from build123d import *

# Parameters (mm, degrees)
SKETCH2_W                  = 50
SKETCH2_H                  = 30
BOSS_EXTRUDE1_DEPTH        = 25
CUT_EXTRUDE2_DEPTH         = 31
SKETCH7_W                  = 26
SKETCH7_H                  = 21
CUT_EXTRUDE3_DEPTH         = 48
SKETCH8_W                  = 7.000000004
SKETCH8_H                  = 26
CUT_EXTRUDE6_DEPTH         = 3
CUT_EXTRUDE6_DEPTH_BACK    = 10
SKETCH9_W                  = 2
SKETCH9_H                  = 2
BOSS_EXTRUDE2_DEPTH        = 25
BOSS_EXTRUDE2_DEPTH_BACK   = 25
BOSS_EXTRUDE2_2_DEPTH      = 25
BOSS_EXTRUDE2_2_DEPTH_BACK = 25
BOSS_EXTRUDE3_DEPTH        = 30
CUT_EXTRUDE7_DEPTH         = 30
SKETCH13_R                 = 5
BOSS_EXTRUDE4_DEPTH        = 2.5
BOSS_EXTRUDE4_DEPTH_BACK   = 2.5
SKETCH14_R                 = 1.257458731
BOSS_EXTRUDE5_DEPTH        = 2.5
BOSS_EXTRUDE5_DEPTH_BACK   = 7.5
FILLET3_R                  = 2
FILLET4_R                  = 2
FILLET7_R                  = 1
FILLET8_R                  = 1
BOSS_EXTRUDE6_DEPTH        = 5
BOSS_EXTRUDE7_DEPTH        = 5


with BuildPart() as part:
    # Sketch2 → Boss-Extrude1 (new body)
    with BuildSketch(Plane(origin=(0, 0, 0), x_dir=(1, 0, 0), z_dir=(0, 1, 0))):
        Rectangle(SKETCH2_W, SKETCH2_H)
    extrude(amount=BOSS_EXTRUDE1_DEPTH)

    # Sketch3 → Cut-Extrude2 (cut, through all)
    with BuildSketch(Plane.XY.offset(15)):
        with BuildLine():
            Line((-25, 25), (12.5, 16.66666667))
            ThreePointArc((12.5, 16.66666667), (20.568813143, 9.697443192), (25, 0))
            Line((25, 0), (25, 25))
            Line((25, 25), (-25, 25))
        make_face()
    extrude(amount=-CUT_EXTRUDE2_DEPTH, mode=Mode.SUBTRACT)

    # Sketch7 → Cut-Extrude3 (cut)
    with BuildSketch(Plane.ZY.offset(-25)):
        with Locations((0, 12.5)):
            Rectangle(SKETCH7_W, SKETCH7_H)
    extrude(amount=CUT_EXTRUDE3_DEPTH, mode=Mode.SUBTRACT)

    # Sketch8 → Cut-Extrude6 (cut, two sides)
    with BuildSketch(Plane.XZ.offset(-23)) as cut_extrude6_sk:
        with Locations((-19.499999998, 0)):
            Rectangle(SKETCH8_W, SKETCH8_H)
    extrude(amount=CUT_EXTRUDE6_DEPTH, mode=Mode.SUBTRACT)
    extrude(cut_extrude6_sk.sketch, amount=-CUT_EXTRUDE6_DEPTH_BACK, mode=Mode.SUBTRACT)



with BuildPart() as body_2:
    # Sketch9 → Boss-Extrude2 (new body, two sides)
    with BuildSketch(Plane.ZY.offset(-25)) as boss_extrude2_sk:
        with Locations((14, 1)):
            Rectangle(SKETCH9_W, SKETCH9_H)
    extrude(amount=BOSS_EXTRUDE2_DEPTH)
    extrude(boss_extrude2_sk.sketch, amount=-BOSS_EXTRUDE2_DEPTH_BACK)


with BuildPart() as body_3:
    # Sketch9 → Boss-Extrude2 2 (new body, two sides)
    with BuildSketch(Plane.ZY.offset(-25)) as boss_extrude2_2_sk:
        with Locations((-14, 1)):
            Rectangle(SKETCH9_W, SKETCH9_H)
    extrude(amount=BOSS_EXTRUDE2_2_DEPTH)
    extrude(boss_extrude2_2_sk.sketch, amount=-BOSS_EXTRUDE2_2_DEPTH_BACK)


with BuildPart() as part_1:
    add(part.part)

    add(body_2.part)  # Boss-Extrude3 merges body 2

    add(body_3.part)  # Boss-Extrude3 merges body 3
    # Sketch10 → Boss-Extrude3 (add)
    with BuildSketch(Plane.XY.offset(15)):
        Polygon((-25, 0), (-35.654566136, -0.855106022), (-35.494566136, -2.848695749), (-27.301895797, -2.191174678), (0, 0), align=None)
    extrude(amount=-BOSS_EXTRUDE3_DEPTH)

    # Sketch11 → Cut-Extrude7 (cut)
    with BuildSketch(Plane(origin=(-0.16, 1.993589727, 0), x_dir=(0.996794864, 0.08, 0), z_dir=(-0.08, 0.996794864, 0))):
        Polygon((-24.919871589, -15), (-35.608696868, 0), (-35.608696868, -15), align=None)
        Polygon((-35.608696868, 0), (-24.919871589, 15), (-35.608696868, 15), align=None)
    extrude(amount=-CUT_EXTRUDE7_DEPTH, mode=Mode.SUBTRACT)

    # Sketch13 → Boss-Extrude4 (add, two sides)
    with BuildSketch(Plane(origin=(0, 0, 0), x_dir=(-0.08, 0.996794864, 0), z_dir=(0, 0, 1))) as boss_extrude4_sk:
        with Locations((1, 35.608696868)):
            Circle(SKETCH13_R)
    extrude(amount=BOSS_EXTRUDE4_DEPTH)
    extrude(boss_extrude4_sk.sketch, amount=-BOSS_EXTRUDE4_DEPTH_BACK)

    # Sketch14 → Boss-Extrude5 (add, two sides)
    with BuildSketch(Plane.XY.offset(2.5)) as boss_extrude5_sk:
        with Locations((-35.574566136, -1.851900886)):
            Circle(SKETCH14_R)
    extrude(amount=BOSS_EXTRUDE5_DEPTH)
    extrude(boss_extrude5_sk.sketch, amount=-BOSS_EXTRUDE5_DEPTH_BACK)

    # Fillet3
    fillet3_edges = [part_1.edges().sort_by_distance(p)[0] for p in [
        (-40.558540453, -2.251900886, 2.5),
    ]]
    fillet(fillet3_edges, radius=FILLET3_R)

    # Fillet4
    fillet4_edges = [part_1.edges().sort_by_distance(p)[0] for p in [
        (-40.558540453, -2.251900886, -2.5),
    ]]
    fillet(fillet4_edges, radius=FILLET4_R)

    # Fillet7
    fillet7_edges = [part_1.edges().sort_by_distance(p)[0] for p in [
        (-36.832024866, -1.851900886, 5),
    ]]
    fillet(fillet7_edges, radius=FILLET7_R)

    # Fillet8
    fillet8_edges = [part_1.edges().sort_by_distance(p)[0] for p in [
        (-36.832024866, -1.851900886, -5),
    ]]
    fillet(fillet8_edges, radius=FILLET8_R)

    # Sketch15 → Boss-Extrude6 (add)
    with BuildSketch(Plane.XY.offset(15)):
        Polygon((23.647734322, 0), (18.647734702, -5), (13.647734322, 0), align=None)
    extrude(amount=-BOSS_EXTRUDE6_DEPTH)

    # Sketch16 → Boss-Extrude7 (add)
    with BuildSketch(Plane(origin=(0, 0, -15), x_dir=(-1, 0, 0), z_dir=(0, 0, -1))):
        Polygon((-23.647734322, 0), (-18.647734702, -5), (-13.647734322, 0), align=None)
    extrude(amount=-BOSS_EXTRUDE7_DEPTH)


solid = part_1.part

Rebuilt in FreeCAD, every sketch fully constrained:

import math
import FreeCAD as App
import Part
import Sketcher


def edges_at(feature, points):
    """Names of the edges that pass closest to the given points."""
    edges = feature.Shape.Edges
    near = lambda p: min(range(len(edges)), key=lambda i: edges[i].distToShape(Part.Vertex(*p))[0])
    return sorted({f"Edge{near(p) + 1}" for p in points})


def add_polygon(sketch, points):
    """Adds a closed chain of lines whose ends are joined by coincident constraints."""
    first, n = sketch.GeometryCount, len(points)
    for a, b in zip(points, points[1:] + points[:1]):
        sketch.addGeometry(Part.LineSegment(App.Vector(*a, 0), App.Vector(*b, 0)), False)
    for i in range(n):
        sketch.addConstraint(Sketcher.Constraint("Coincident", first + i, 2, first + (i + 1) % n, 1))

doc = App.newDocument("Part")
params = doc.addObject("Spreadsheet::Sheet", "Params")
for row, (alias, value) in enumerate([
    ("sketch1_width", "50 mm"),
    ("sketch1_height", "30 mm"),
    ("pad1_length", "25 mm"),
    ("sketch2_radius", "25 mm"),
    ("sketch2_width", "50 mm"),
    ("sketch2_height", "25 mm"),
    ("sketch3_width", "21 mm"),
    ("sketch3_height", "26 mm"),
    ("pocket2_length", "48 mm"),
    ("sketch4_width", "7 mm"),
    ("sketch4_height", "26 mm"),
    ("pocket3_length", "3 mm"),
    ("pocket3_length2", "10 mm"),
    ("sketch5_width", "2 mm"),
    ("pad2_length", "25 mm"),
    ("pad2_length2", "25 mm"),
    ("sketch6_width", "2 mm"),
    ("pad3_length", "25 mm"),
    ("pad3_length2", "25 mm"),
    ("sketch7_width", "25 mm"),
    ("sketch7_length", "2 mm"),
    ("pad4_length", "30 mm"),
    ("sketch8_height", "15 mm"),
    ("pocket4_length", "30 mm"),
    ("sketch9_diameter", "10 mm"),
    ("pad5_length", "2.5 mm"),
    ("pad5_length2", "2.5 mm"),
    ("pad6_length", "2.5 mm"),
    ("pad6_length2", "7.5 mm"),
    ("fillet_radius", "2 mm"),
    ("fillet2_radius", "2 mm"),
    ("fillet3_radius", "1 mm"),
    ("fillet4_radius", "1 mm"),
    ("sketch11_width", "10 mm"),
    ("pad7_length", "5 mm"),
    ("sketch12_width", "10 mm"),
    ("pad8_length", "5 mm"),
], start=1):
    params.set(f"A{row}", alias)
    params.set(f"B{row}", "=" + value)
    params.setAlias(f"B{row}", alias)

body = doc.addObject("PartDesign::Body", "Body")

# Sketch on XZ plane
sketch1 = body.newObject("Sketcher::SketchObject", "Sketch")
sketch1.AttachmentSupport = (doc.getObject("XZ_Plane"), [""])
sketch1.MapMode = "FlatFace"
add_polygon(sketch1, [(-25, -15), (-25, 15), (25, 15), (25, -15)])  # lines 0-3
sketch1.addConstraint(Sketcher.Constraint("Vertical", 0))
sketch1.addConstraint(Sketcher.Constraint("Horizontal", 1))
sketch1.addConstraint(Sketcher.Constraint("Vertical", 2))
sketch1.addConstraint(Sketcher.Constraint("Horizontal", 3))
sketch1.addConstraint(Sketcher.Constraint("Symmetric", 0, 2, 2, 2, -1, 1))
sketch1.addConstraint(Sketcher.Constraint("DistanceX", 1, 1, 1, 2, 50.0))
sketch1.addConstraint(Sketcher.Constraint("DistanceY", 0, 1, 0, 2, 30.0))
sketch1.setExpression("Constraints[9]", "Params.sketch1_width")
sketch1.setExpression("Constraints[10]", "Params.sketch1_height")
pad1 = body.newObject("PartDesign::Pad", "Pad")
pad1.Profile = sketch1
pad1.setExpression("Length", "Params.pad1_length")
pad1.Reversed = True

# Sketch on XY plane
sketch2 = body.newObject("Sketcher::SketchObject", "Sketch001")
sketch2.AttachmentSupport = (doc.getObject("XY_Plane"), [""])
sketch2.MapMode = "FlatFace"
sketch2.AttachmentOffset = App.Placement(App.Vector(0, 0, 15), App.Rotation())
sketch2.addGeometry(Part.LineSegment(App.Vector(-25, 25, 0), App.Vector(12.5, 16.666667, 0)), False)
sketch2.addGeometry(Part.ArcOfCircle(Part.Circle(App.Vector(0.568813, -5.302557, 0), App.Vector(0, 0, 1), 25), math.radians(12.245579), math.radians(61.494216)), False)
sketch2.addGeometry(Part.LineSegment(App.Vector(25, 0, 0), App.Vector(25, 25, 0)), False)
sketch2.addGeometry(Part.LineSegment(App.Vector(25, 25, 0), App.Vector(-25, 25, 0)), False)
sketch2.addConstraint(Sketcher.Constraint("Coincident", 0, 2, 1, 2))
sketch2.addConstraint(Sketcher.Constraint("Coincident", 1, 1, 2, 1))
sketch2.addConstraint(Sketcher.Constraint("Coincident", 2, 2, 3, 1))
sketch2.addConstraint(Sketcher.Constraint("Coincident", 3, 2, 0, 1))
sketch2.addConstraint(Sketcher.Constraint("Vertical", 2))
sketch2.addConstraint(Sketcher.Constraint("Horizontal", 3))
sketch2.addConstraint(Sketcher.Constraint("PointOnObject", 1, 1, -1))
sketch2.addConstraint(Sketcher.Constraint("Radius", 1, 25.0))
sketch2.addConstraint(Sketcher.Constraint("DistanceX", 3, 2, 3, 1, 50.0))
sketch2.addConstraint(Sketcher.Constraint("DistanceY", 2, 1, 2, 2, 25.0))
sketch2.addConstraint(Sketcher.Constraint("DistanceX", -1, 1, 1, 1, 25.0))
sketch2.addConstraint(Sketcher.Constraint("DistanceX", -1, 1, 0, 2, 12.5))
sketch2.addConstraint(Sketcher.Constraint("Distance", 0, 38.414769))
sketch2.setExpression("Constraints[7]", "Params.sketch2_radius")
sketch2.setExpression("Constraints[8]", "Params.sketch2_width")
sketch2.setExpression("Constraints[9]", "Params.sketch2_height")
pocket1 = body.newObject("PartDesign::Pocket", "Pocket")
pocket1.Profile = sketch2
pocket1.Type = "ThroughAll"

# Sketch on YZ plane
sketch3 = body.newObject("Sketcher::SketchObject", "Sketch002")
sketch3.AttachmentSupport = (doc.getObject("YZ_Plane"), [""])
sketch3.MapMode = "FlatFace"
sketch3.AttachmentOffset = App.Placement(App.Vector(0, 0, 25), App.Rotation())
add_polygon(sketch3, [(23, -13), (2, -13), (2, 13), (23, 13)])  # lines 0-3
sketch3.addConstraint(Sketcher.Constraint("Horizontal", 0))
sketch3.addConstraint(Sketcher.Constraint("Vertical", 1))
sketch3.addConstraint(Sketcher.Constraint("Horizontal", 2))
sketch3.addConstraint(Sketcher.Constraint("Vertical", 3))
sketch3.addConstraint(Sketcher.Constraint("DistanceX", 0, 2, 0, 1, 21.0))
sketch3.addConstraint(Sketcher.Constraint("DistanceY", 1, 1, 1, 2, 26.0))
sketch3.addConstraint(Sketcher.Constraint("DistanceX", -1, 1, 0, 2, 2.0))
sketch3.addConstraint(Sketcher.Constraint("DistanceY", 0, 2, -1, 1, 13.0))
sketch3.setExpression("Constraints[8]", "Params.sketch3_width")
sketch3.setExpression("Constraints[9]", "Params.sketch3_height")
pocket2 = body.newObject("PartDesign::Pocket", "Pocket001")
pocket2.Profile = sketch3
pocket2.setExpression("Length", "Params.pocket2_length")

# Sketch on XZ plane
sketch4 = body.newObject("Sketcher::SketchObject", "Sketch003")
sketch4.AttachmentSupport = (doc.getObject("XZ_Plane"), [""])
sketch4.MapMode = "FlatFace"
sketch4.AttachmentOffset = App.Placement(App.Vector(0, 0, -23), App.Rotation())
add_polygon(sketch4, [(-23, 13), (-23, -13), (-16, -13), (-16, 13)])  # lines 0-3
sketch4.addConstraint(Sketcher.Constraint("Vertical", 0))
sketch4.addConstraint(Sketcher.Constraint("Horizontal", 1))
sketch4.addConstraint(Sketcher.Constraint("Vertical", 2))
sketch4.addConstraint(Sketcher.Constraint("Horizontal", 3))
sketch4.addConstraint(Sketcher.Constraint("DistanceX", 1, 1, 1, 2, 7.0))
sketch4.addConstraint(Sketcher.Constraint("DistanceY", 0, 2, 0, 1, 26.0))
sketch4.addConstraint(Sketcher.Constraint("DistanceX", 0, 2, -1, 1, 23.0))
sketch4.addConstraint(Sketcher.Constraint("DistanceY", 0, 2, -1, 1, 13.0))
sketch4.setExpression("Constraints[8]", "Params.sketch4_width")
sketch4.setExpression("Constraints[9]", "Params.sketch4_height")
pocket3 = body.newObject("PartDesign::Pocket", "Pocket002")
pocket3.Profile = sketch4
pocket3.Type = "TwoLengths"
pocket3.setExpression("Length", "Params.pocket3_length")
pocket3.setExpression("Length2", "Params.pocket3_length2")
pocket3.Reversed = True
body2 = doc.addObject("PartDesign::Body", "Body001")

# Sketch on YZ plane
sketch5 = body2.newObject("Sketcher::SketchObject", "Sketch004")
sketch5.AttachmentSupport = (doc.getObject("YZ_Plane001"), [""])
sketch5.MapMode = "FlatFace"
sketch5.AttachmentOffset = App.Placement(App.Vector(0, 0, 25), App.Rotation())
add_polygon(sketch5, [(2, 13), (0, 13), (0, 15), (2, 15)])  # lines 0-3
sketch5.addConstraint(Sketcher.Constraint("Horizontal", 0))
sketch5.addConstraint(Sketcher.Constraint("Vertical", 1))
sketch5.addConstraint(Sketcher.Constraint("Horizontal", 2))
sketch5.addConstraint(Sketcher.Constraint("Vertical", 3))
sketch5.addConstraint(Sketcher.Constraint("PointOnObject", 0, 2, -2))
sketch5.addConstraint(Sketcher.Constraint("Equal", 2, 1))
sketch5.addConstraint(Sketcher.Constraint("DistanceX", 0, 2, 0, 1, 2.0))
sketch5.addConstraint(Sketcher.Constraint("DistanceY", -1, 1, 0, 2, 13.0))
sketch5.setExpression("Constraints[10]", "Params.sketch5_width")
pad2 = body2.newObject("PartDesign::Pad", "Pad001")
pad2.Profile = sketch5
pad2.Type = "TwoLengths"
pad2.setExpression("Length", "Params.pad2_length")
pad2.setExpression("Length2", "Params.pad2_length2")
pad2.Reversed = True
body3 = doc.addObject("PartDesign::Body", "Body002")

# Sketch on YZ plane
sketch6 = body3.newObject("Sketcher::SketchObject", "Sketch005")
sketch6.AttachmentSupport = (doc.getObject("YZ_Plane002"), [""])
sketch6.MapMode = "FlatFace"
sketch6.AttachmentOffset = App.Placement(App.Vector(0, 0, 25), App.Rotation())
add_polygon(sketch6, [(2, -15), (0, -15), (0, -13), (2, -13)])  # lines 0-3
sketch6.addConstraint(Sketcher.Constraint("Horizontal", 0))
sketch6.addConstraint(Sketcher.Constraint("Vertical", 1))
sketch6.addConstraint(Sketcher.Constraint("Horizontal", 2))
sketch6.addConstraint(Sketcher.Constraint("Vertical", 3))
sketch6.addConstraint(Sketcher.Constraint("PointOnObject", 0, 2, -2))
sketch6.addConstraint(Sketcher.Constraint("Equal", 2, 1))
sketch6.addConstraint(Sketcher.Constraint("DistanceX", 0, 2, 0, 1, 2.0))
sketch6.addConstraint(Sketcher.Constraint("DistanceY", 0, 2, -1, 1, 15.0))
sketch6.setExpression("Constraints[10]", "Params.sketch6_width")
pad3 = body3.newObject("PartDesign::Pad", "Pad002")
pad3.Profile = sketch6
pad3.Type = "TwoLengths"
pad3.setExpression("Length", "Params.pad3_length")
pad3.setExpression("Length2", "Params.pad3_length2")
pad3.Reversed = True
doc.recompute()

boolean = body.newObject("PartDesign::Boolean", "Boolean")
boolean.Type = "Fuse"
boolean.addObjects([body2])
doc.recompute()

boolean2 = body.newObject("PartDesign::Boolean", "Boolean001")
boolean2.Type = "Fuse"
boolean2.addObjects([body3])

# Sketch on XY plane
sketch7 = body.newObject("Sketcher::SketchObject", "Sketch006")
sketch7.AttachmentSupport = (doc.getObject("XY_Plane"), [""])
sketch7.MapMode = "FlatFace"
sketch7.AttachmentOffset = App.Placement(App.Vector(0, 0, 15), App.Rotation())
add_polygon(sketch7, [(-25, 0), (-35.654566, -0.855106), (-35.494566, -2.848696), (-27.301896, -2.191175), (0, 0)])  # lines 0-4
sketch7.addConstraint(Sketcher.Constraint("Horizontal", 4))
sketch7.addConstraint(Sketcher.Constraint("Coincident", 3, 2, -1, 1))
sketch7.addConstraint(Sketcher.Constraint("Perpendicular", 0, 1))
sketch7.addConstraint(Sketcher.Constraint("Perpendicular", 1, 2))
sketch7.addConstraint(Sketcher.Constraint("Parallel", 2, 3))
sketch7.addConstraint(Sketcher.Constraint("DistanceX", 4, 2, 4, 1, 25.0))
sketch7.addConstraint(Sketcher.Constraint("Distance", 1, 2.0))
sketch7.addConstraint(Sketcher.Constraint("DistanceX", 1, 2, 2, 2, 8.19267))
sketch7.addConstraint(Sketcher.Constraint("Distance", 0, 10.688825))
sketch7.setExpression("Constraints[10]", "Params.sketch7_width")
sketch7.setExpression("Constraints[11]", "Params.sketch7_length")
pad4 = body.newObject("PartDesign::Pad", "Pad003")
pad4.Profile = sketch7
pad4.setExpression("Length", "Params.pad4_length")
pad4.Reversed = True

# Sketch on an angled plane
sketch8 = body.newObject("Sketcher::SketchObject", "Sketch007")
sketch8.Placement = App.Placement(App.Vector(-0.16, 1.99359, 0), App.Rotation(App.Vector(0.996794864, 0.08, 0), App.Vector(0, 0, -1.000000001), App.Vector(-0.08, 0.996794864, 0), "ZXY"))
add_polygon(sketch8, [(-24.919872, -15), (-35.608697, 0), (-35.608697, -15)])  # lines 0-2
add_polygon(sketch8, [(-35.608697, 0), (-24.919872, 15), (-35.608697, 15)])  # lines 3-5
sketch8.addConstraint(Sketcher.Constraint("Vertical", 1))
sketch8.addConstraint(Sketcher.Constraint("Horizontal", 2))
sketch8.addConstraint(Sketcher.Constraint("Horizontal", 4))
sketch8.addConstraint(Sketcher.Constraint("Vertical", 5))
sketch8.addConstraint(Sketcher.Constraint("Coincident", 5, 2, 0, 2))
sketch8.addConstraint(Sketcher.Constraint("Symmetric", 2, 2, 3, 2, -1))
sketch8.addConstraint(Sketcher.Constraint("PointOnObject", 0, 2, -1))
sketch8.addConstraint(Sketcher.Constraint("DistanceY", 1, 2, 1, 1, 15.0))
sketch8.addConstraint(Sketcher.Constraint("DistanceX", 2, 1, 2, 2, 10.688825))
sketch8.addConstraint(Sketcher.Constraint("DistanceX", 2, 2, -1, 1, 24.919872))
sketch8.setExpression("Constraints[13]", "Params.sketch8_height")
pocket4 = body.newObject("PartDesign::Pocket", "Pocket003")
pocket4.Profile = sketch8
pocket4.setExpression("Length", "Params.pocket4_length")

# Sketch on XY plane
sketch9 = body.newObject("Sketcher::SketchObject", "Sketch008")
sketch9.AttachmentSupport = (doc.getObject("XY_Plane"), [""])
sketch9.MapMode = "FlatFace"
sketch9.addGeometry(Part.Circle(App.Vector(-35.574566, -1.851901, 0), App.Vector(0, 0, 1), 5), False)
sketch9.addConstraint(Sketcher.Constraint("Diameter", 0, 10.0))
sketch9.addConstraint(Sketcher.Constraint("DistanceY", 0, 3, -1, 1, 1.851901))
sketch9.addConstraint(Sketcher.Constraint("DistanceX", 0, 3, -1, 1, 35.574566))
sketch9.setExpression("Constraints[0]", "Params.sketch9_diameter")
pad5 = body.newObject("PartDesign::Pad", "Pad004")
pad5.Profile = sketch9
pad5.Type = "TwoLengths"
pad5.setExpression("Length", "Params.pad5_length")
pad5.setExpression("Length2", "Params.pad5_length2")

# Sketch on XY plane
sketch10 = body.newObject("Sketcher::SketchObject", "Sketch009")
sketch10.AttachmentSupport = (doc.getObject("XY_Plane"), [""])
sketch10.MapMode = "FlatFace"
sketch10.AttachmentOffset = App.Placement(App.Vector(0, 0, 2.5), App.Rotation())
sketch10.addGeometry(Part.Circle(App.Vector(-35.574566, -1.851901, 0), App.Vector(0, 0, 1), 1.257459), False)
sketch10.addConstraint(Sketcher.Constraint("Diameter", 0, 2.514917))
sketch10.addConstraint(Sketcher.Constraint("DistanceY", 0, 3, -1, 1, 1.851901))
sketch10.addConstraint(Sketcher.Constraint("DistanceX", 0, 3, -1, 1, 35.574566))
pad6 = body.newObject("PartDesign::Pad", "Pad005")
pad6.Profile = sketch10
pad6.Type = "TwoLengths"
pad6.setExpression("Length", "Params.pad6_length")
pad6.setExpression("Length2", "Params.pad6_length2")
doc.recompute()

fillet = body.newObject("PartDesign::Fillet", "Fillet")
fillet.Base = (pad6, edges_at(pad6, [(-40.559, -2.252, 2.5)]))
fillet.setExpression("Radius", "Params.fillet_radius")
doc.recompute()

fillet2 = body.newObject("PartDesign::Fillet", "Fillet001")
fillet2.Base = (fillet, edges_at(fillet, [(-40.559, -2.252, -2.5)]))
fillet2.setExpression("Radius", "Params.fillet2_radius")
doc.recompute()

fillet3 = body.newObject("PartDesign::Fillet", "Fillet002")
fillet3.Base = (fillet2, edges_at(fillet2, [(-36.832, -1.852, 5)]))
fillet3.setExpression("Radius", "Params.fillet3_radius")
doc.recompute()

fillet4 = body.newObject("PartDesign::Fillet", "Fillet003")
fillet4.Base = (fillet3, edges_at(fillet3, [(-36.832, -1.852, -5)]))
fillet4.setExpression("Radius", "Params.fillet4_radius")

# Sketch on XY plane
sketch11 = body.newObject("Sketcher::SketchObject", "Sketch010")
sketch11.AttachmentSupport = (doc.getObject("XY_Plane"), [""])
sketch11.MapMode = "FlatFace"
sketch11.AttachmentOffset = App.Placement(App.Vector(0, 0, 15), App.Rotation())
add_polygon(sketch11, [(18.647735, -5), (23.647734, 0), (13.647734, 0)])  # lines 0-2
sketch11.addConstraint(Sketcher.Constraint("Horizontal", 1))
sketch11.addConstraint(Sketcher.Constraint("PointOnObject", 0, 2, -1))
sketch11.addConstraint(Sketcher.Constraint("Perpendicular", 0, 2))
sketch11.addConstraint(Sketcher.Constraint("Equal", 0, 2))
sketch11.addConstraint(Sketcher.Constraint("DistanceX", 1, 2, 1, 1, 10.0))
sketch11.addConstraint(Sketcher.Constraint("DistanceX", -1, 1, 0, 2, 23.647734))
sketch11.setExpression("Constraints[7]", "Params.sketch11_width")
pad7 = body.newObject("PartDesign::Pad", "Pad006")
pad7.Profile = sketch11
pad7.setExpression("Length", "Params.pad7_length")
pad7.Reversed = True

# Sketch on XY plane
sketch12 = body.newObject("Sketcher::SketchObject", "Sketch011")
sketch12.AttachmentSupport = (doc.getObject("XY_Plane"), [""])
sketch12.MapMode = "FlatFace"
sketch12.AttachmentOffset = App.Placement(App.Vector(0, 0, -15), App.Rotation())
add_polygon(sketch12, [(23.647734, 0), (18.647735, -5), (13.647734, 0)])  # lines 0-2
sketch12.addConstraint(Sketcher.Constraint("Horizontal", 2))
sketch12.addConstraint(Sketcher.Constraint("PointOnObject", 1, 2, -1))
sketch12.addConstraint(Sketcher.Constraint("Perpendicular", 0, 1))
sketch12.addConstraint(Sketcher.Constraint("Equal", 0, 1))
sketch12.addConstraint(Sketcher.Constraint("DistanceX", 2, 1, 2, 2, 10.0))
sketch12.addConstraint(Sketcher.Constraint("DistanceX", -1, 1, 0, 2, 18.647735))
sketch12.setExpression("Constraints[7]", "Params.sketch12_width")
pad8 = body.newObject("PartDesign::Pad", "Pad007")
pad8.Profile = sketch12
pad8.setExpression("Length", "Params.pad8_length")

doc.recompute()
